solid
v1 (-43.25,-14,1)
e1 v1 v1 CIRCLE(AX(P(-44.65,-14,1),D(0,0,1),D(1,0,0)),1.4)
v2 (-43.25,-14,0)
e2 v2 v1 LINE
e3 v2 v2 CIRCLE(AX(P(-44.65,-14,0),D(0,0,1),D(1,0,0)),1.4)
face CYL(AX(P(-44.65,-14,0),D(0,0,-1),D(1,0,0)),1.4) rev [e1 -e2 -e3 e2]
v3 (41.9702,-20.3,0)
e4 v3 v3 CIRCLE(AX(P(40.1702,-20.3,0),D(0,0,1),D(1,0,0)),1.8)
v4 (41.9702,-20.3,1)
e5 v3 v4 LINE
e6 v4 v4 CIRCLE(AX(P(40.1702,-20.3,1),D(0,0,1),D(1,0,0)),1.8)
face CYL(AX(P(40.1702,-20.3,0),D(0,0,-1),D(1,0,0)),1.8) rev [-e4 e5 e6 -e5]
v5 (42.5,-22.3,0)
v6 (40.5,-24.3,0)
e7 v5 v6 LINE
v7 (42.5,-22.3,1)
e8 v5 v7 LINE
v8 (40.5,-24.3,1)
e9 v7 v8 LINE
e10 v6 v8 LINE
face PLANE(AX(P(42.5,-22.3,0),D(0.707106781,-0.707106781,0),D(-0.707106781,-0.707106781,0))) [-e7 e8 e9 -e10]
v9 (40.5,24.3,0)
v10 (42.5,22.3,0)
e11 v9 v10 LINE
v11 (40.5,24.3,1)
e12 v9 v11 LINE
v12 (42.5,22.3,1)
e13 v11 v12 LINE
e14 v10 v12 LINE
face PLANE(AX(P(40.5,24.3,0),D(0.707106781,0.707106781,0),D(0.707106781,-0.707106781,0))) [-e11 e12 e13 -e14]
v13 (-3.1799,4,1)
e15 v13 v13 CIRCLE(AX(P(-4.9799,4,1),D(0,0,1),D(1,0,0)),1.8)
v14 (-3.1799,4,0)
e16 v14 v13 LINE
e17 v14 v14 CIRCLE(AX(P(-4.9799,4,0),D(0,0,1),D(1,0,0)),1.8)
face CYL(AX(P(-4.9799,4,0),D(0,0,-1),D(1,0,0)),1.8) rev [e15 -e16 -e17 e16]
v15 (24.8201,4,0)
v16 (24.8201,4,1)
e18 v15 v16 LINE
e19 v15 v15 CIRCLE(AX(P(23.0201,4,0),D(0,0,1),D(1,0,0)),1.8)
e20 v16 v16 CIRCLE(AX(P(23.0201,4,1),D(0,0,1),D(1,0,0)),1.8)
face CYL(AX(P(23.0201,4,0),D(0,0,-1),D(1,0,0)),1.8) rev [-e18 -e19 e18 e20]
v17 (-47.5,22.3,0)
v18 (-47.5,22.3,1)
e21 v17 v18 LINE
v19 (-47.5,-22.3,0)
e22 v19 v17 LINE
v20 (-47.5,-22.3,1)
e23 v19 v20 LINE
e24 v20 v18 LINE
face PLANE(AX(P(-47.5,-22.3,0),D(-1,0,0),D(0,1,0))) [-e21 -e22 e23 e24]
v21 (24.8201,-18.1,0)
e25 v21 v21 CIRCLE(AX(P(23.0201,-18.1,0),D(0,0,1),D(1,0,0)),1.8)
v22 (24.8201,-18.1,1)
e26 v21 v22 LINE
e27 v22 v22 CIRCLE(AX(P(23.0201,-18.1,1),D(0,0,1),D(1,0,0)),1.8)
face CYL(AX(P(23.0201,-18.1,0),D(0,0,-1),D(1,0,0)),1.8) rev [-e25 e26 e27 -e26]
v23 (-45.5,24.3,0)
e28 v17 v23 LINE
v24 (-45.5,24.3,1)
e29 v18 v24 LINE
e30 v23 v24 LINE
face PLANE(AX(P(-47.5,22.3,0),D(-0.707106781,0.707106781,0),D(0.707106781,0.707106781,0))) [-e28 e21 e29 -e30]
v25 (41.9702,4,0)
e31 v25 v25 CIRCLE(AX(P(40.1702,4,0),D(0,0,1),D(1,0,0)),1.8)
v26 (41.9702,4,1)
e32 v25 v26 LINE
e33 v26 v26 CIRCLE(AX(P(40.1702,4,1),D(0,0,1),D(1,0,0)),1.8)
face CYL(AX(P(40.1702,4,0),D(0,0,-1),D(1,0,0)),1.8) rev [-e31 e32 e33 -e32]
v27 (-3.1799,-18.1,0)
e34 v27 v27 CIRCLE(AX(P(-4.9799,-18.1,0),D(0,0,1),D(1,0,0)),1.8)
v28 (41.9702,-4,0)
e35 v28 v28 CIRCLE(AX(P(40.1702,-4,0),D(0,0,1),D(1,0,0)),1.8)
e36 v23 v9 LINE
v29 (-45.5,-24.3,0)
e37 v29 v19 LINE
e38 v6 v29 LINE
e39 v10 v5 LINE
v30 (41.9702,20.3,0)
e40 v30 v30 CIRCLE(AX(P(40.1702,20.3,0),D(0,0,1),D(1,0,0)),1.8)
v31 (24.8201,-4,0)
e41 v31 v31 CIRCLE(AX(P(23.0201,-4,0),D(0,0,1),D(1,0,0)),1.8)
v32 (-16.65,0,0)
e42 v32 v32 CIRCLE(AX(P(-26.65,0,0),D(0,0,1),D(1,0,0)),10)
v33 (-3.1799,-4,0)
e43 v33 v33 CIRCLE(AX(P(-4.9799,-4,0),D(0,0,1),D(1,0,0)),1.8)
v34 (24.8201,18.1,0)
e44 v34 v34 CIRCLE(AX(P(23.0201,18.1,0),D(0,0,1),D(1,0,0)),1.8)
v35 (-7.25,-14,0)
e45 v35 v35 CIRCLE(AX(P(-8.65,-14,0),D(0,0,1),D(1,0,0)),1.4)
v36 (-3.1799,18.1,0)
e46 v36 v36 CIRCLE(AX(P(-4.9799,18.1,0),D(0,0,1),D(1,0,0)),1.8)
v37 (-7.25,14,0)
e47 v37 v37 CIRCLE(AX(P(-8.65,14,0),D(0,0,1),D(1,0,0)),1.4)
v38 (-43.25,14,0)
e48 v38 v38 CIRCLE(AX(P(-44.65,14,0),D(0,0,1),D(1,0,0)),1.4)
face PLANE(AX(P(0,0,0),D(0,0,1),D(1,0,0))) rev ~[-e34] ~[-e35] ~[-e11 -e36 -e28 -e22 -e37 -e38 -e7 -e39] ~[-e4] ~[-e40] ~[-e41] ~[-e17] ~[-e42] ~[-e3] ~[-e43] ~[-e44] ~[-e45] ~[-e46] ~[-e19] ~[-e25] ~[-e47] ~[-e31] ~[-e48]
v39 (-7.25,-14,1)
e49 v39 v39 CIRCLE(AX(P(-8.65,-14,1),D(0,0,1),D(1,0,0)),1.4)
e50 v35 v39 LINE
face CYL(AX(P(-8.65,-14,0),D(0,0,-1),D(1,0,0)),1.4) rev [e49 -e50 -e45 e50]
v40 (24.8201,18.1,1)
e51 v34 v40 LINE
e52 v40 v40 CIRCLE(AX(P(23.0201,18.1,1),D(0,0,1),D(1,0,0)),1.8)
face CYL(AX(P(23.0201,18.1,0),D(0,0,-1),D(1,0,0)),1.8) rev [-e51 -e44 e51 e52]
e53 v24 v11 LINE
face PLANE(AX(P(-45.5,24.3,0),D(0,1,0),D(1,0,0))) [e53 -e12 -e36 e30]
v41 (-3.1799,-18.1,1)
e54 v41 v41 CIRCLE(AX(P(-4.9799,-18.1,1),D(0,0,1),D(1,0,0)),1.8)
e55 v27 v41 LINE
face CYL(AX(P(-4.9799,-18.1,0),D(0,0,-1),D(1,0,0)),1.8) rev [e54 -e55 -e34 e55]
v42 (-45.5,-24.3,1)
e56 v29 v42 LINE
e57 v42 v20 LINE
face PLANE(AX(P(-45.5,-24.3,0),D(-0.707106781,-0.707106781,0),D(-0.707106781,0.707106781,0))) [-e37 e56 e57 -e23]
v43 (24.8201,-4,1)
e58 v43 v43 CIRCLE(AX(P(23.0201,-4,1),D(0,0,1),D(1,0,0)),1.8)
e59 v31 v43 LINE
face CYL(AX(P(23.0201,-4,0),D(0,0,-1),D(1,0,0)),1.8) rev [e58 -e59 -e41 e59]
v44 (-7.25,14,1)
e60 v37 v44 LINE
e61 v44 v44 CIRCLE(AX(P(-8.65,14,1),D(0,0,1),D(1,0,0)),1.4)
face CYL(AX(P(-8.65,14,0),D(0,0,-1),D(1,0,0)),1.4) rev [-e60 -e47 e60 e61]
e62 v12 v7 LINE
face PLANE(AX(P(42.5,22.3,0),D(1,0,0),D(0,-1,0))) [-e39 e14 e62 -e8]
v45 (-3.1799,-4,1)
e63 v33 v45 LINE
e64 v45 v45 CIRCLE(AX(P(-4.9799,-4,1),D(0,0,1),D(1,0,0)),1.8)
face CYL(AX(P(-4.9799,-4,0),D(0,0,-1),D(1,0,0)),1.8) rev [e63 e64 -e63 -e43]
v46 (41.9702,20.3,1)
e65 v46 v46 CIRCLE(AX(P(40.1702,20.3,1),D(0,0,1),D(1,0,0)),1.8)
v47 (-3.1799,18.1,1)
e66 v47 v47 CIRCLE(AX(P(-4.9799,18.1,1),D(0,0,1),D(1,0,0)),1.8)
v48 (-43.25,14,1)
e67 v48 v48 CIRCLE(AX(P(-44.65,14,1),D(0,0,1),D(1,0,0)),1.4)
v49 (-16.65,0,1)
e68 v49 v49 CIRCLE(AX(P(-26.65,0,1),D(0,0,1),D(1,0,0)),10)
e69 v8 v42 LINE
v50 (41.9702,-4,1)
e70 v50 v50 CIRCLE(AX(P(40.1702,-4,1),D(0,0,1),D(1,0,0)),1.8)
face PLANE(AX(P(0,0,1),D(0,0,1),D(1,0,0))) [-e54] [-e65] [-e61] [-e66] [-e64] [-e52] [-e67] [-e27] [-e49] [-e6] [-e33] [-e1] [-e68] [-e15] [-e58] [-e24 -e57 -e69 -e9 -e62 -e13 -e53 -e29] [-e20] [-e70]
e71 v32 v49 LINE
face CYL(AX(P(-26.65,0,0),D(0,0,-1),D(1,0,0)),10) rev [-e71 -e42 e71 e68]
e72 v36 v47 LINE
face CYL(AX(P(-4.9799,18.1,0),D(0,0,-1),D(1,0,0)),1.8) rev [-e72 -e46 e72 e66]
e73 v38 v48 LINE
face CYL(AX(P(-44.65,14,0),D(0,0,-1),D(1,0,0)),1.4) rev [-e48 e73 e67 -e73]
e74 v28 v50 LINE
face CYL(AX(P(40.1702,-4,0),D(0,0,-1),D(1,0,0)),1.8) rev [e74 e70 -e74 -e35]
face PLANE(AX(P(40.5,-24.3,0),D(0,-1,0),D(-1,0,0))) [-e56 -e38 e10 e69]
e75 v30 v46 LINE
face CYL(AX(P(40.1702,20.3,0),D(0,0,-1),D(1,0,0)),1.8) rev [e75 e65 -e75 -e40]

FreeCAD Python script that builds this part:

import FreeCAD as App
import Part
import Sketcher
Q = App.Units.Quantity

doc = App.newDocument("Part")
body = doc.addObject("PartDesign::Body", "Body")

# Sketch on XY plane
sketch1 = body.newObject("Sketcher::SketchObject", "Sketch")
sketch1.AttachmentSupport = (doc.getObject("XY_Plane"), [""])
sketch1.MapMode = "FlatFace"
sketch1.addGeometry(Part.LineSegment(App.Vector(-47.5, -22.3, 0), App.Vector(-45.5, -24.3, 0)), False)
sketch1.addGeometry(Part.LineSegment(App.Vector(-45.5, -24.3, 0), App.Vector(40.5, -24.3, 0)), False)
sketch1.addGeometry(Part.LineSegment(App.Vector(40.5, -24.3, 0), App.Vector(42.5, -22.3, 0)), False)
sketch1.addGeometry(Part.LineSegment(App.Vector(42.5, -22.3, 0), App.Vector(42.5, 22.3, 0)), False)
sketch1.addGeometry(Part.LineSegment(App.Vector(42.5, 22.3, 0), App.Vector(40.5, 24.3, 0)), False)
sketch1.addGeometry(Part.LineSegment(App.Vector(40.5, 24.3, 0), App.Vector(-45.5, 24.3, 0)), False)
sketch1.addGeometry(Part.LineSegment(App.Vector(-45.5, 24.3, 0), App.Vector(-47.5, 22.3, 0)), False)
sketch1.addGeometry(Part.LineSegment(App.Vector(-47.5, 22.3, 0), App.Vector(-47.5, -22.3, 0)), False)
sketch1.addGeometry(Part.Circle(App.Vector(-44.65, -14, 0), App.Vector(0, 0, 1), 1.4), False)
sketch1.addGeometry(Part.Circle(App.Vector(-4.9799, -18.1, 0), App.Vector(0, 0, 1), 1.8), False)
sketch1.addGeometry(Part.Circle(App.Vector(-8.65, -14, 0), App.Vector(0, 0, 1), 1.4), False)
sketch1.addGeometry(Part.Circle(App.Vector(-4.9799, -4, 0), App.Vector(0, 0, 1), 1.8), False)
sketch1.addGeometry(Part.Circle(App.Vector(40.1702, -20.3, 0), App.Vector(0, 0, 1), 1.8), False)
sketch1.addGeometry(Part.Circle(App.Vector(23.0201, -18.1, 0), App.Vector(0, 0, 1), 1.8), False)
sketch1.addGeometry(Part.Circle(App.Vector(23.0201, -4, 0), App.Vector(0, 0, 1), 1.8), False)
sketch1.addGeometry(Part.Circle(App.Vector(40.1702, -4, 0), App.Vector(0, 0, 1), 1.8), False)
sketch1.addGeometry(Part.Circle(App.Vector(-26.65, 0, 0), App.Vector(0, 0, 1), 10), False)
sketch1.addGeometry(Part.Circle(App.Vector(-4.9799, 4, 0), App.Vector(0, 0, 1), 1.8), False)
sketch1.addGeometry(Part.Circle(App.Vector(-44.65, 14, 0), App.Vector(0, 0, 1), 1.4), False)
sketch1.addGeometry(Part.Circle(App.Vector(-8.65, 14, 0), App.Vector(0, 0, 1), 1.4), False)
sketch1.addGeometry(Part.Circle(App.Vector(-4.9799, 18.1, 0), App.Vector(0, 0, 1), 1.8), False)
sketch1.addGeometry(Part.Circle(App.Vector(23.0201, 4, 0), App.Vector(0, 0, 1), 1.8), False)
sketch1.addGeometry(Part.Circle(App.Vector(40.1702, 4, 0), App.Vector(0, 0, 1), 1.8), False)
sketch1.addGeometry(Part.Circle(App.Vector(23.0201, 18.1, 0), App.Vector(0, 0, 1), 1.8), False)
sketch1.addGeometry(Part.Circle(App.Vector(40.1702, 20.3, 0), App.Vector(0, 0, 1), 1.8), False)
sketch1.addConstraint(Sketcher.Constraint("Coincident", 0, 2, 1, 1))
sketch1.addConstraint(Sketcher.Constraint("Coincident", 1, 2, 2, 1))
sketch1.addConstraint(Sketcher.Constraint("Coincident", 2, 2, 3, 1))
sketch1.addConstraint(Sketcher.Constraint("Coincident", 3, 2, 4, 1))
sketch1.addConstraint(Sketcher.Constraint("Coincident", 4, 2, 5, 1))
sketch1.addConstraint(Sketcher.Constraint("Coincident", 5, 2, 6, 1))
sketch1.addConstraint(Sketcher.Constraint("Coincident", 6, 2, 7, 1))
sketch1.addConstraint(Sketcher.Constraint("Coincident", 7, 2, 0, 1))
sketch1.addConstraint(Sketcher.Constraint("Horizontal", 1))
sketch1.addConstraint(Sketcher.Constraint("Vertical", 3))
sketch1.addConstraint(Sketcher.Constraint("Horizontal", 5))
sketch1.addConstraint(Sketcher.Constraint("Vertical", 7))
sketch1.addConstraint(Sketcher.Constraint("Equal", 8, 10))
sketch1.addConstraint(Sketcher.Constraint("Equal", 9, 11))
sketch1.addConstraint(Sketcher.Constraint("Equal", 11, 12))
sketch1.addConstraint(Sketcher.Constraint("Equal", 12, 13))
sketch1.addConstraint(Sketcher.Constraint("Equal", 13, 14))
sketch1.addConstraint(Sketcher.Constraint("Equal", 14, 15))
sketch1.addConstraint(Sketcher.Constraint("Equal", 15, 17))
sketch1.addConstraint(Sketcher.Constraint("Equal", 10, 18))
sketch1.addConstraint(Sketcher.Constraint("Equal", 18, 19))
sketch1.addConstraint(Sketcher.Constraint("Equal", 17, 20))
sketch1.addConstraint(Sketcher.Constraint("Equal", 20, 21))
sketch1.addConstraint(Sketcher.Constraint("Equal", 21, 22))
sketch1.addConstraint(Sketcher.Constraint("Equal", 22, 23))
sketch1.addConstraint(Sketcher.Constraint("Equal", 23, 24))
sketch1.addConstraint(Sketcher.Constraint("Symmetric", 11, 3, 17, 3, -1))
sketch1.addConstraint(Sketcher.Constraint("Symmetric", 8, 3, 18, 3, -1))
sketch1.addConstraint(Sketcher.Constraint("Symmetric", 10, 3, 19, 3, -1))
sketch1.addConstraint(Sketcher.Constraint("Symmetric", 9, 3, 20, 3, -1))
sketch1.addConstraint(Sketcher.Constraint("Symmetric", 14, 3, 21, 3, -1))
sketch1.addConstraint(Sketcher.Constraint("Symmetric", 15, 3, 22, 3, -1))
sketch1.addConstraint(Sketcher.Constraint("Symmetric", 13, 3, 23, 3, -1))
sketch1.addConstraint(Sketcher.Constraint("Symmetric", 12, 3, 24, 3, -1))
sketch1.addConstraint(Sketcher.Constraint("Symmetric", 1, 2, 4, 2, -1))
sketch1.addConstraint(Sketcher.Constraint("PointOnObject", 16, 3, -1))
sketch1.addConstraint(Sketcher.Constraint("Perpendicular", 0, 2))
sketch1.addConstraint(Sketcher.Constraint("Perpendicular", 2, 4))
sketch1.addConstraint(Sketcher.Constraint("Perpendicular", 4, 6))
sketch1.addConstraint(Sketcher.Constraint("Horizontal", 8, 3, 10, 3))
sketch1.addConstraint(Sketcher.Constraint("Horizontal", 9, 3, 13, 3))
sketch1.addConstraint(Sketcher.Constraint("Horizontal", 11, 3, 14, 3))
sketch1.addConstraint(Sketcher.Constraint("Horizontal", 14, 3, 15, 3))
sketch1.addConstraint(Sketcher.Constraint("Horizontal", 3, 2, 6, 2))
sketch1.addConstraint(Sketcher.Constraint("Horizontal", 2, 2, 7, 2))
sketch1.addConstraint(Sketcher.Constraint("Vertical", 9, 3, 11, 3))
sketch1.addConstraint(Sketcher.Constraint("Vertical", 13, 3, 14, 3))
sketch1.addConstraint(Sketcher.Constraint("Vertical", 12, 3, 15, 3))
sketch1.addConstraint(Sketcher.Constraint("Vertical", 0, 2, 5, 2))
sketch1.addConstraint(Sketcher.Constraint("Diameter", 16, Q("20 mm")))
sketch1.addConstraint(Sketcher.Constraint("Diameter", 8, Q("2.8 mm")))
sketch1.addConstraint(Sketcher.Constraint("Diameter", 9, Q("3.6 mm")))
sketch1.addConstraint(Sketcher.Constraint("DistanceX", 1, 1, 1, 2, Q("86 mm")))
sketch1.addConstraint(Sketcher.Constraint("DistanceY", 3, 1, 3, 2, Q("44.6 mm")))
sketch1.addConstraint(Sketcher.Constraint("DistanceY", 8, 3, -1, 1, Q("14 mm")))
sketch1.addConstraint(Sketcher.Constraint("DistanceY", 11, 3, -1, 1, Q("4 mm")))
sketch1.addConstraint(Sketcher.Constraint("DistanceX", 8, 3, 10, 3, Q("36 mm")))
sketch1.addConstraint(Sketcher.Constraint("DistanceX", 9, 3, 13, 3, Q("28 mm")))
sketch1.addConstraint(Sketcher.Constraint("DistanceX", 8, 3, 16, 3, Q("18 mm")))
sketch1.addConstraint(Sketcher.Constraint("DistanceY", 1, 2, 12, 3, Q("4 mm")))
sketch1.addConstraint(Sketcher.Constraint("DistanceX", 1, 2, 2, 2, Q("2 mm")))
sketch1.addConstraint(Sketcher.Constraint("DistanceY", 9, 3, -1, 1, Q("18.1 mm")))
sketch1.addConstraint(Sketcher.Constraint("DistanceX", 0, 2, -1, 1, Q("45.5 mm")))
sketch1.addConstraint(Sketcher.Constraint("DistanceX", 8, 3, -1, 1, Q("44.65 mm")))
sketch1.addConstraint(Sketcher.Constraint("DistanceX", 9, 3, -1, 1, Q("4.98 mm")))
sketch1.addConstraint(Sketcher.Constraint("DistanceX", 9, 3, 12, 3, Q("45.15 mm")))
pad1 = body.newObject("PartDesign::Pad", "Pad")
pad1.Profile = sketch1
pad1.Length = 1

doc.recompute()
